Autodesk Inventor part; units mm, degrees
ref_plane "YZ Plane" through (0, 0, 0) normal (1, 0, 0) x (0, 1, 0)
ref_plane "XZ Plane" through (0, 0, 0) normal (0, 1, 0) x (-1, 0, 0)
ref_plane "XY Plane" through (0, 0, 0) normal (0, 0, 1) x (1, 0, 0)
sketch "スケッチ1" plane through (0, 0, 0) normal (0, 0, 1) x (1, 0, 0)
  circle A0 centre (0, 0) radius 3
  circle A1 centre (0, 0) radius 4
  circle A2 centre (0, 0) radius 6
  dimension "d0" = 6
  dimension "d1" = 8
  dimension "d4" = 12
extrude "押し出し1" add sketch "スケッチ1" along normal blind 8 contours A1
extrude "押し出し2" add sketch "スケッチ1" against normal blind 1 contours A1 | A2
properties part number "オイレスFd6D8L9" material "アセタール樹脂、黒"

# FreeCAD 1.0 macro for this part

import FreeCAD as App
import Part
import Sketcher
Q = App.Units.Quantity

doc = App.newDocument("Part")
body = doc.addObject("PartDesign::Body", "Body")

sketch1 = doc.addObject("Sketcher::SketchObject", "Sketch")
body.addObject(sketch1)
sketch1.AttachmentSupport = (doc.XY_Plane, [""])
sketch1.MapMode = "FlatFace"
sketch1.addGeometry([
    Part.Circle(App.Vector(0, 0, 0), App.Vector(0, 0, 1), 4),
    Part.Circle(App.Vector(0, 0, 0), App.Vector(0, 0, 1), 3),
], False)
sketch1.addConstraint([
    Sketcher.Constraint("Coincident", 0, 3, -1, 1),
    Sketcher.Constraint("Coincident", 1, 3, -1, 1),
    Sketcher.Constraint("Diameter", 0, Q("8 mm")),
    Sketcher.Constraint("Diameter", 1, Q("6 mm")),
])
pad1 = doc.addObject("PartDesign::Pad", "Pad")
body.addObject(pad1)
pad1.Profile = sketch1
pad1.Length = 8

sketch2 = doc.addObject("Sketcher::SketchObject", "Sketch001")
body.addObject(sketch2)
sketch2.AttachmentSupport = (doc.XY_Plane, [""])
sketch2.MapMode = "FlatFace"
sketch2.addGeometry([
    Part.Circle(App.Vector(0, 0, 0), App.Vector(0, 0, 1), 6),
    Part.Circle(App.Vector(0, 0, 0), App.Vector(0, 0, 1), 3),
], False)
sketch2.addConstraint([
    Sketcher.Constraint("Coincident", 0, 3, -1, 1),
    Sketcher.Constraint("Coincident", 1, 3, -1, 1),
    Sketcher.Constraint("Diameter", 0, Q("12 mm")),
    Sketcher.Constraint("Diameter", 1, Q("6 mm")),
])
pad2 = doc.addObject("PartDesign::Pad", "Pad001")
body.addObject(pad2)
pad2.Profile = sketch2
pad2.Length = 1
pad2.Reversed = True

doc.recompute()
